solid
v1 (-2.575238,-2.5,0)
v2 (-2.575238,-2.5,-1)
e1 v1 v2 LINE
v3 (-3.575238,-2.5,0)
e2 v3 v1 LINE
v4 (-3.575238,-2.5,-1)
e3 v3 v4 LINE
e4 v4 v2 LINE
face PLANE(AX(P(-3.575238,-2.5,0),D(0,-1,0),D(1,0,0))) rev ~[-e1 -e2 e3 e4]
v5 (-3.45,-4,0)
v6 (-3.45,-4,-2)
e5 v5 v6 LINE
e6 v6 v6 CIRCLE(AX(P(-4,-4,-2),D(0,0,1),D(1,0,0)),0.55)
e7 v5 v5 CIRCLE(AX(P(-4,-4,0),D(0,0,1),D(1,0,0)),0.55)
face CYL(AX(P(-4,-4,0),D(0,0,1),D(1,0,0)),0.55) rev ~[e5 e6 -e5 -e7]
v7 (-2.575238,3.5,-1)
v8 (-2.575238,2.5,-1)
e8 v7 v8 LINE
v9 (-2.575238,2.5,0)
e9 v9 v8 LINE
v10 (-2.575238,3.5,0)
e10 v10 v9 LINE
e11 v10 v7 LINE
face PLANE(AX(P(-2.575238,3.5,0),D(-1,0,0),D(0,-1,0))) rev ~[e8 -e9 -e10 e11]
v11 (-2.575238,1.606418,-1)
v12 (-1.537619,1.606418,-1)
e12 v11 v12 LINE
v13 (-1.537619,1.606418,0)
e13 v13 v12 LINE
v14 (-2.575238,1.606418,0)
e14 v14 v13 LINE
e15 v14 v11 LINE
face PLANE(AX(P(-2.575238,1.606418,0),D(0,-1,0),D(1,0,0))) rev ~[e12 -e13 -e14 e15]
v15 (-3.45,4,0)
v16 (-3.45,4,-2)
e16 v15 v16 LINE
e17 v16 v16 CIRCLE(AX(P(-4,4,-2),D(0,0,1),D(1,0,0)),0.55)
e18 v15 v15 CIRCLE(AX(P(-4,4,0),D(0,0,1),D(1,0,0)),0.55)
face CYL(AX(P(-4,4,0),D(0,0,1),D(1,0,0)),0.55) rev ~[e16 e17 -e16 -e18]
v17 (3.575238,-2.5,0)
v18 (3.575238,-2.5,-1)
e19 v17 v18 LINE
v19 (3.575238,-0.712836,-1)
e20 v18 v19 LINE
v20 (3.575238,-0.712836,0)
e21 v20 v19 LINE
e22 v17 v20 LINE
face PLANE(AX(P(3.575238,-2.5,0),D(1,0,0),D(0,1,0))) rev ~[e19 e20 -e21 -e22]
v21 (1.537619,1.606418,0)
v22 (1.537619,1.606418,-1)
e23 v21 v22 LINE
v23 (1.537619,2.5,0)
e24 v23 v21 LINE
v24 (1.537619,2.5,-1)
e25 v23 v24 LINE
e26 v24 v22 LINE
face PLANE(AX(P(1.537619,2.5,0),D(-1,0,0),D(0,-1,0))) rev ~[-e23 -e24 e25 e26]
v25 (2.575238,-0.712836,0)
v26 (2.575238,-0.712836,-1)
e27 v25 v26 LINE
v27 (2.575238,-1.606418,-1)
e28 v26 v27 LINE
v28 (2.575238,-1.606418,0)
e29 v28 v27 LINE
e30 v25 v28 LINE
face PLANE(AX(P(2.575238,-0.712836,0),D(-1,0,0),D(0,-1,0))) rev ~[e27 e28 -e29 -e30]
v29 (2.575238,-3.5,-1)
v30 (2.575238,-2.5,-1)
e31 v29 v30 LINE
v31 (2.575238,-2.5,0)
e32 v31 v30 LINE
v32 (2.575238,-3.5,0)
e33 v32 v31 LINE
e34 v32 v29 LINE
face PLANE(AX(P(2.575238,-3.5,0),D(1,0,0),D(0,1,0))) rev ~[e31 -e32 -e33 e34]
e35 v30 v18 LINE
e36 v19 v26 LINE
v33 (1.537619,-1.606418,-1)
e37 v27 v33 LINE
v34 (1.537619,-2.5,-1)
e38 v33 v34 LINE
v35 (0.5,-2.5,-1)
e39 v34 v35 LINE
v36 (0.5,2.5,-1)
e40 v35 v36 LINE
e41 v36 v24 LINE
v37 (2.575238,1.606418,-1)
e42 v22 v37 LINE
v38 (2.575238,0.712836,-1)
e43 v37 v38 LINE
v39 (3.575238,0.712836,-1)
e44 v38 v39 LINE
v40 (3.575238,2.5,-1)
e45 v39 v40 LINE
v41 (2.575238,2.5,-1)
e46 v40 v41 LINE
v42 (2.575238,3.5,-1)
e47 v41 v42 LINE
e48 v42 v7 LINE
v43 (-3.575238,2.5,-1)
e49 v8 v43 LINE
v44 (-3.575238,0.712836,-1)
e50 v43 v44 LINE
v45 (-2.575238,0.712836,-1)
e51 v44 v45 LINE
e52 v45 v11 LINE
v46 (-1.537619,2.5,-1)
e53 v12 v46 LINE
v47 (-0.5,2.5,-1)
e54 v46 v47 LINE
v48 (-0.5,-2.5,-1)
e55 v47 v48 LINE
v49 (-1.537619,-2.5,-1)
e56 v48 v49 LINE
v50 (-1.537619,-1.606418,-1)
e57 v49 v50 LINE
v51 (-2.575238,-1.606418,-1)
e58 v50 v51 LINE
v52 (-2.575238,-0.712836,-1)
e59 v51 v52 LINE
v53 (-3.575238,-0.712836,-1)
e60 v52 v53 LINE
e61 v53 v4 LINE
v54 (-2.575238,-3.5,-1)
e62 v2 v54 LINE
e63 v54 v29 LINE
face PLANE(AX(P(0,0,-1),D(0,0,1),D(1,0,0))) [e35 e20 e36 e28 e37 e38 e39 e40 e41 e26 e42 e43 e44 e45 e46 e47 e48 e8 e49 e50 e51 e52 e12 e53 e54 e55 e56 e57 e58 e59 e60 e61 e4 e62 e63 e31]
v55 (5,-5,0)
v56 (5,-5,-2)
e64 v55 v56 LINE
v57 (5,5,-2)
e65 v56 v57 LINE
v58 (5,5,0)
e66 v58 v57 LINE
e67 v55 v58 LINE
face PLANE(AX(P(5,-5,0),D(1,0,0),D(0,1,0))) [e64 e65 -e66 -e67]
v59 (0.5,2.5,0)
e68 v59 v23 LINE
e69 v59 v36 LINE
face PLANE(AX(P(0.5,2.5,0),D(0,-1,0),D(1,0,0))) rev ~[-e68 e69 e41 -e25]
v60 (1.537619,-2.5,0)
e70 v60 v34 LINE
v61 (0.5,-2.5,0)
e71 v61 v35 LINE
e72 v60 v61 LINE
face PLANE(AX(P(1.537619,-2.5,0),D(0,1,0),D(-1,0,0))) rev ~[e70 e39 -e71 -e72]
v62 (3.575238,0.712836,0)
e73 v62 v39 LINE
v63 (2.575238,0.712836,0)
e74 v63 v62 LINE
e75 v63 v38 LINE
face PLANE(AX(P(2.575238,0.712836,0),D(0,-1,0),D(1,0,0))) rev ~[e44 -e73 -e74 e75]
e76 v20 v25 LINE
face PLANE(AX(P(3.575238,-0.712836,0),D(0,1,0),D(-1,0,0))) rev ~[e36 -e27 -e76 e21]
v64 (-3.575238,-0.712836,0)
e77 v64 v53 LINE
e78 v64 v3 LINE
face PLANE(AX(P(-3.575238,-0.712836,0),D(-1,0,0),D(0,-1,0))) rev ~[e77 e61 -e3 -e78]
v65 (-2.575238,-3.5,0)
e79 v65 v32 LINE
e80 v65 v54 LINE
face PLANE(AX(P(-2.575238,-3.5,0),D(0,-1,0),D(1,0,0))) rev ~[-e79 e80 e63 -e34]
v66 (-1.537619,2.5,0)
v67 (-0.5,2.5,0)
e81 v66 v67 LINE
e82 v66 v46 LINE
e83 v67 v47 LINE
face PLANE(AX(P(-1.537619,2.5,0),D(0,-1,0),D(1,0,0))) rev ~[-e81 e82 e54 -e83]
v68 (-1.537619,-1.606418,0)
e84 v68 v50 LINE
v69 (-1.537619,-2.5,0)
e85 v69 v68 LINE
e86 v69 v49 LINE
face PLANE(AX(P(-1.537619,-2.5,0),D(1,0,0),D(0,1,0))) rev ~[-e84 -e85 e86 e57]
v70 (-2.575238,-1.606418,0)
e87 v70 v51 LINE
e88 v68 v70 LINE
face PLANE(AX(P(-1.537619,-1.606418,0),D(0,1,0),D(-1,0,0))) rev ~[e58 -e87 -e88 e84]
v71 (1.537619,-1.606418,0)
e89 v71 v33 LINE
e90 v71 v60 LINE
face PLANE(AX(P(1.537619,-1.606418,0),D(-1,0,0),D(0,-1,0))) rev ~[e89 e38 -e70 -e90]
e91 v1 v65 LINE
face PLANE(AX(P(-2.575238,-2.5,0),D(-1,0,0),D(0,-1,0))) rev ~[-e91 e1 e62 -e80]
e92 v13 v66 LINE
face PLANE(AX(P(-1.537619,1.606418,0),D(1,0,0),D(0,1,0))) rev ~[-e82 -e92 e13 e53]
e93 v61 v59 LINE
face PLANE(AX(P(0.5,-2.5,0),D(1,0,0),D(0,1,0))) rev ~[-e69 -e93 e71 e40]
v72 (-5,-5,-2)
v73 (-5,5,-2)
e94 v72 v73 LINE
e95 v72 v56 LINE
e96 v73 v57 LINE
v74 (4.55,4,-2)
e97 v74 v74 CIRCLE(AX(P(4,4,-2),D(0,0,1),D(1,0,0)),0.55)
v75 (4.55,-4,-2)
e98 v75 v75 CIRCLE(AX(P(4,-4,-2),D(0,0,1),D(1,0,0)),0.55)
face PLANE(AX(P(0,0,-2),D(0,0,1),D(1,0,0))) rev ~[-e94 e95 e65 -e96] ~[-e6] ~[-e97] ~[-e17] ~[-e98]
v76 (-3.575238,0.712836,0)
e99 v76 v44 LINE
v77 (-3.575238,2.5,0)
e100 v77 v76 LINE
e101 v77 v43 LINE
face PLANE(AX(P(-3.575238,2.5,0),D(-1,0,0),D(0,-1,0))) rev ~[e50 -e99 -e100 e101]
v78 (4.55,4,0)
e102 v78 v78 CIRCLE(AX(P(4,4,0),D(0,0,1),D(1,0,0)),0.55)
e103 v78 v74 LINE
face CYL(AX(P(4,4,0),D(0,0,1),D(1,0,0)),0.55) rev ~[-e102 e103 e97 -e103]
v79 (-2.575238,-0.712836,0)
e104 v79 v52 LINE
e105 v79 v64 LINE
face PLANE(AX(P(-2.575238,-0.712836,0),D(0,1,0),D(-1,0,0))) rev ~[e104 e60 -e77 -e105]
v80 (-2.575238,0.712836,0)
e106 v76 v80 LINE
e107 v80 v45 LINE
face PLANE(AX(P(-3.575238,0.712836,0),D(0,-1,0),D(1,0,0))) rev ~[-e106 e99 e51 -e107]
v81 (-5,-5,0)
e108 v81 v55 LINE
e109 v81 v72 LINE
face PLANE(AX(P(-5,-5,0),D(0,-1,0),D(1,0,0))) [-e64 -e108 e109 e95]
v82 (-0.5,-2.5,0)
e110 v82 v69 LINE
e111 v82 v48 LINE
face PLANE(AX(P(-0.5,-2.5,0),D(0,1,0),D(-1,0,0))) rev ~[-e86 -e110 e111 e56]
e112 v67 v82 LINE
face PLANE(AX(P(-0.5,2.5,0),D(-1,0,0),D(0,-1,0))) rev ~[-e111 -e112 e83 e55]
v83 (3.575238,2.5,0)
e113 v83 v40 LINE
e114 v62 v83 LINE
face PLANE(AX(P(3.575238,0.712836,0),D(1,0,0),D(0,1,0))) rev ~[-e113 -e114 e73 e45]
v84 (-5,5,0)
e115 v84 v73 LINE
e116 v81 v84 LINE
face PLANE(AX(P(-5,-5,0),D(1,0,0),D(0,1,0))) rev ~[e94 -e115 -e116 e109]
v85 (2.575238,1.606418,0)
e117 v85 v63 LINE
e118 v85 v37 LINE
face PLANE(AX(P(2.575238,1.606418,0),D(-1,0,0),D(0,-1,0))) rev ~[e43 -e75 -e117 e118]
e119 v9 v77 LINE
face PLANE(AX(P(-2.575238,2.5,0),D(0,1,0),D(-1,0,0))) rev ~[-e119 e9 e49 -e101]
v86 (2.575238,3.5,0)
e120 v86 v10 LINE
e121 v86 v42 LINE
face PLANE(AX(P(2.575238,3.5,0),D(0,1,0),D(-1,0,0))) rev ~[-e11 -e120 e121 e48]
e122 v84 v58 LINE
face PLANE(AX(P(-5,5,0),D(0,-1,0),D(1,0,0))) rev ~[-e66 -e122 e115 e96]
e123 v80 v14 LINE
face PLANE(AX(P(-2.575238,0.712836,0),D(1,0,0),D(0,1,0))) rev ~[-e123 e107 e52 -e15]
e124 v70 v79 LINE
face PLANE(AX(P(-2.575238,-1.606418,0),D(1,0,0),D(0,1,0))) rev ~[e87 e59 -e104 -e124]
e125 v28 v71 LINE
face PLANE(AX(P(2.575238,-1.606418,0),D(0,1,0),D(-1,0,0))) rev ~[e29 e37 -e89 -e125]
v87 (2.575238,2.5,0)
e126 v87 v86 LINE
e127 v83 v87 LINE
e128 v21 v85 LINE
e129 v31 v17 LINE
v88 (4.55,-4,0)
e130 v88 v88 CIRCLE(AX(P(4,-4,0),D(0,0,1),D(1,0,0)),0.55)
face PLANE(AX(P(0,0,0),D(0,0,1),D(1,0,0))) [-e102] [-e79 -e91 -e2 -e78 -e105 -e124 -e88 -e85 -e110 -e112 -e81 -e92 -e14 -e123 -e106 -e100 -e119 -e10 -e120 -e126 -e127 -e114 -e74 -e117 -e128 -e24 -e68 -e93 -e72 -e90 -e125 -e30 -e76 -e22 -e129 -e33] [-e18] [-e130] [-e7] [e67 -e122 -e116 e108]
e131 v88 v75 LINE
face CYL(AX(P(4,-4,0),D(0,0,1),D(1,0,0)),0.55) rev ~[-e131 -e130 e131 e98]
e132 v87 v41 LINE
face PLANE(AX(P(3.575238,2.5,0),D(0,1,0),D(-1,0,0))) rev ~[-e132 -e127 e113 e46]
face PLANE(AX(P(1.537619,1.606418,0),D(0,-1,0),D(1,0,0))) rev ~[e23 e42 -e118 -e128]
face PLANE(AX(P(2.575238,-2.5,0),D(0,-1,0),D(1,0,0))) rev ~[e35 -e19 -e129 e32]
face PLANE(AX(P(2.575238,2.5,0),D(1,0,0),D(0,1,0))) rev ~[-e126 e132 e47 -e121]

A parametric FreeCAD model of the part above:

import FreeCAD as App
import Part
import Sketcher


def add_polygon(sketch, points):
    """Adds a closed chain of lines whose ends are joined by coincident constraints."""
    first, n = sketch.GeometryCount, len(points)
    for a, b in zip(points, points[1:] + points[:1]):
        sketch.addGeometry(Part.LineSegment(App.Vector(*a, 0), App.Vector(*b, 0)), False)
    for i in range(n):
        sketch.addConstraint(Sketcher.Constraint("Coincident", first + i, 2, first + (i + 1) % n, 1))

doc = App.newDocument("Part")
body = doc.addObject("PartDesign::Body", "Body")

sketch1 = body.newObject("Sketcher::SketchObject", "Sketch")
sketch1.AttachmentSupport = (doc.getObject("XY_Plane"), [""])
sketch1.MapMode = "FlatFace"
add_polygon(sketch1, [(-5, 5), (-5, -5), (5, -5), (5, 5)])
sketch1.addGeometry(Part.Circle(App.Vector(-4, -4, 0), App.Vector(0, 0, 1), 0.55), False)
sketch1.addGeometry(Part.Circle(App.Vector(4, -4, 0), App.Vector(0, 0, 1), 0.55), False)
sketch1.addGeometry(Part.Circle(App.Vector(-4, 4, 0), App.Vector(0, 0, 1), 0.55), False)
sketch1.addGeometry(Part.Circle(App.Vector(4, 4, 0), App.Vector(0, 0, 1), 0.55), False)
sketch1.addConstraint(Sketcher.Constraint("Vertical", 0))
sketch1.addConstraint(Sketcher.Constraint("Horizontal", 1))
sketch1.addConstraint(Sketcher.Constraint("Vertical", 2))
sketch1.addConstraint(Sketcher.Constraint("Horizontal", 3))
sketch1.addConstraint(Sketcher.Constraint("Equal", 4, 5))
sketch1.addConstraint(Sketcher.Constraint("Equal", 5, 6))
sketch1.addConstraint(Sketcher.Constraint("Equal", 6, 7))
sketch1.addConstraint(Sketcher.Constraint("Symmetric", 5, 3, 6, 3, -1, 1))
sketch1.addConstraint(Sketcher.Constraint("Symmetric", 4, 3, 7, 3, -1, 1))
sketch1.addConstraint(Sketcher.Constraint("Symmetric", 0, 2, 2, 2, -1, 1))
sketch1.addConstraint(Sketcher.Constraint("Symmetric", 4, 3, 5, 3, -2))
sketch1.addConstraint(Sketcher.Constraint("Equal", 3, 0))
sketch1.addConstraint(Sketcher.Constraint("Diameter", 4, 1.1))
sketch1.addConstraint(Sketcher.Constraint("DistanceX", 1, 1, 1, 2, 10.0))
sketch1.addConstraint(Sketcher.Constraint("DistanceX", 4, 3, -1, 1, 4.0))
sketch1.addConstraint(Sketcher.Constraint("DistanceY", 4, 3, -1, 1, 4.0))
pad1 = body.newObject("PartDesign::Pad", "Pad")
pad1.Profile = sketch1
pad1.Length = 2
pad1.Reversed = True

sketch2 = body.newObject("Sketcher::SketchObject", "Sketch001")
sketch2.AttachmentSupport = (doc.getObject("XY_Plane"), [""])
sketch2.MapMode = "FlatFace"
add_polygon(sketch2, [(0.5, 2.5), (1.537619, 2.5), (1.537619, 1.606418), (2.575238, 1.606418), (2.575238, 0.712836), (3.575238, 0.712836), (3.575238, 2.5), (2.575238, 2.5), (2.575238, 3.5), (-2.575238, 3.5), (-2.575238, 2.5), (-3.575238, 2.5), (-3.575238, 0.712836), (-2.575238, 0.712836), (-2.575238, 1.606418), (-1.537619, 1.606418), (-1.537619, 2.5), (-0.5, 2.5), (-0.5, -2.5), (-1.537619, -2.5), (-1.537619, -1.606418), (-2.575238, -1.606418), (-2.575238, -0.712836), (-3.575238, -0.712836), (-3.575238, -2.5), (-2.575238, -2.5), (-2.575238, -3.5), (2.575238, -3.5), (2.575238, -2.5), (3.575238, -2.5), (3.575238, -0.712836), (2.575238, -0.712836), (2.575238, -1.606418), (1.537619, -1.606418), (1.537619, -2.5), (0.5, -2.5)])
sketch2.addConstraint(Sketcher.Constraint("Horizontal", 0))
sketch2.addConstraint(Sketcher.Constraint("Vertical", 1))
sketch2.addConstraint(Sketcher.Constraint("Horizontal", 2))
sketch2.addConstraint(Sketcher.Constraint("Vertical", 3))
sketch2.addConstraint(Sketcher.Constraint("Horizontal", 4))
sketch2.addConstraint(Sketcher.Constraint("Vertical", 5))
sketch2.addConstraint(Sketcher.Constraint("Horizontal", 6))
sketch2.addConstraint(Sketcher.Constraint("Vertical", 7))
sketch2.addConstraint(Sketcher.Constraint("Horizontal", 8))
sketch2.addConstraint(Sketcher.Constraint("Vertical", 9))
sketch2.addConstraint(Sketcher.Constraint("Horizontal", 10))
sketch2.addConstraint(Sketcher.Constraint("Vertical", 11))
sketch2.addConstraint(Sketcher.Constraint("Horizontal", 12))
sketch2.addConstraint(Sketcher.Constraint("Vertical", 13))
sketch2.addConstraint(Sketcher.Constraint("Horizontal", 14))
sketch2.addConstraint(Sketcher.Constraint("Vertical", 15))
sketch2.addConstraint(Sketcher.Constraint("Horizontal", 16))
sketch2.addConstraint(Sketcher.Constraint("Vertical", 17))
sketch2.addConstraint(Sketcher.Constraint("Horizontal", 18))
sketch2.addConstraint(Sketcher.Constraint("Vertical", 19))
sketch2.addConstraint(Sketcher.Constraint("Horizontal", 20))
sketch2.addConstraint(Sketcher.Constraint("Vertical", 21))
sketch2.addConstraint(Sketcher.Constraint("Horizontal", 22))
sketch2.addConstraint(Sketcher.Constraint("Vertical", 23))
sketch2.addConstraint(Sketcher.Constraint("Horizontal", 24))
sketch2.addConstraint(Sketcher.Constraint("Vertical", 25))
sketch2.addConstraint(Sketcher.Constraint("Horizontal", 26))
sketch2.addConstraint(Sketcher.Constraint("Vertical", 27))
sketch2.addConstraint(Sketcher.Constraint("Horizontal", 28))
sketch2.addConstraint(Sketcher.Constraint("Vertical", 29))
sketch2.addConstraint(Sketcher.Constraint("Horizontal", 30))
sketch2.addConstraint(Sketcher.Constraint("Vertical", 31))
sketch2.addConstraint(Sketcher.Constraint("Horizontal", 32))
sketch2.addConstraint(Sketcher.Constraint("Vertical", 33))
sketch2.addConstraint(Sketcher.Constraint("Horizontal", 34))
sketch2.addConstraint(Sketcher.Constraint("Vertical", 35))
sketch2.addConstraint(Sketcher.Constraint("Symmetric", 0, 2, 18, 2, -1, 1))
sketch2.addConstraint(Sketcher.Constraint("Symmetric", 2, 2, 20, 2, -1, 1))
sketch2.addConstraint(Sketcher.Constraint("Symmetric", 4, 2, 22, 2, -1, 1))
sketch2.addConstraint(Sketcher.Constraint("Symmetric", 6, 2, 24, 2, -1, 1))
sketch2.addConstraint(Sketcher.Constraint("Symmetric", 8, 2, 26, 2, -1, 1))
sketch2.addConstraint(Sketcher.Constraint("Symmetric", 10, 2, 28, 2, -1, 1))
sketch2.addConstraint(Sketcher.Constraint("Symmetric", 12, 2, 30, 2, -1, 1))
sketch2.addConstraint(Sketcher.Constraint("Symmetric", 14, 2, 32, 2, -1, 1))
sketch2.addConstraint(Sketcher.Constraint("Symmetric", 16, 2, 34, 2, -1, 1))
sketch2.addConstraint(Sketcher.Constraint("Symmetric", 6, 2, 9, 2, -2))
sketch2.addConstraint(Sketcher.Constraint("Symmetric", 4, 2, 11, 2, -2))
sketch2.addConstraint(Sketcher.Constraint("Symmetric", 2, 2, 13, 2, -2))
sketch2.addConstraint(Sketcher.Constraint("Symmetric", 0, 2, 15, 2, -2))
sketch2.addConstraint(Sketcher.Constraint("Horizontal", 0, 2, 5, 2))
sketch2.addConstraint(Sketcher.Constraint("Vertical", 3, 2, 6, 2))
sketch2.addConstraint(Sketcher.Constraint("Equal", 0, 2))
sketch2.addConstraint(Sketcher.Constraint("Equal", 1, 3))
sketch2.addConstraint(Sketcher.Constraint("Equal", 30, 7))
sketch2.addConstraint(Sketcher.Constraint("DistanceX", 4, 1, 4, 2, 1.0))
sketch2.addConstraint(Sketcher.Constraint("DistanceY", 17, 2, 17, 1, 5.0))
sketch2.addConstraint(Sketcher.Constraint("DistanceX", 17, 2, 34, 2, 1.0))
sketch2.addConstraint(Sketcher.Constraint("DistanceX", 0, 1, 0, 2, 1.037619))
sketch2.addConstraint(Sketcher.Constraint("DistanceY", 3, 2, 3, 1, 0.893582))
pocket1 = body.newObject("PartDesign::Pocket", "Pocket")
pocket1.Profile = sketch2
pocket1.Length = 1

doc.recompute()
